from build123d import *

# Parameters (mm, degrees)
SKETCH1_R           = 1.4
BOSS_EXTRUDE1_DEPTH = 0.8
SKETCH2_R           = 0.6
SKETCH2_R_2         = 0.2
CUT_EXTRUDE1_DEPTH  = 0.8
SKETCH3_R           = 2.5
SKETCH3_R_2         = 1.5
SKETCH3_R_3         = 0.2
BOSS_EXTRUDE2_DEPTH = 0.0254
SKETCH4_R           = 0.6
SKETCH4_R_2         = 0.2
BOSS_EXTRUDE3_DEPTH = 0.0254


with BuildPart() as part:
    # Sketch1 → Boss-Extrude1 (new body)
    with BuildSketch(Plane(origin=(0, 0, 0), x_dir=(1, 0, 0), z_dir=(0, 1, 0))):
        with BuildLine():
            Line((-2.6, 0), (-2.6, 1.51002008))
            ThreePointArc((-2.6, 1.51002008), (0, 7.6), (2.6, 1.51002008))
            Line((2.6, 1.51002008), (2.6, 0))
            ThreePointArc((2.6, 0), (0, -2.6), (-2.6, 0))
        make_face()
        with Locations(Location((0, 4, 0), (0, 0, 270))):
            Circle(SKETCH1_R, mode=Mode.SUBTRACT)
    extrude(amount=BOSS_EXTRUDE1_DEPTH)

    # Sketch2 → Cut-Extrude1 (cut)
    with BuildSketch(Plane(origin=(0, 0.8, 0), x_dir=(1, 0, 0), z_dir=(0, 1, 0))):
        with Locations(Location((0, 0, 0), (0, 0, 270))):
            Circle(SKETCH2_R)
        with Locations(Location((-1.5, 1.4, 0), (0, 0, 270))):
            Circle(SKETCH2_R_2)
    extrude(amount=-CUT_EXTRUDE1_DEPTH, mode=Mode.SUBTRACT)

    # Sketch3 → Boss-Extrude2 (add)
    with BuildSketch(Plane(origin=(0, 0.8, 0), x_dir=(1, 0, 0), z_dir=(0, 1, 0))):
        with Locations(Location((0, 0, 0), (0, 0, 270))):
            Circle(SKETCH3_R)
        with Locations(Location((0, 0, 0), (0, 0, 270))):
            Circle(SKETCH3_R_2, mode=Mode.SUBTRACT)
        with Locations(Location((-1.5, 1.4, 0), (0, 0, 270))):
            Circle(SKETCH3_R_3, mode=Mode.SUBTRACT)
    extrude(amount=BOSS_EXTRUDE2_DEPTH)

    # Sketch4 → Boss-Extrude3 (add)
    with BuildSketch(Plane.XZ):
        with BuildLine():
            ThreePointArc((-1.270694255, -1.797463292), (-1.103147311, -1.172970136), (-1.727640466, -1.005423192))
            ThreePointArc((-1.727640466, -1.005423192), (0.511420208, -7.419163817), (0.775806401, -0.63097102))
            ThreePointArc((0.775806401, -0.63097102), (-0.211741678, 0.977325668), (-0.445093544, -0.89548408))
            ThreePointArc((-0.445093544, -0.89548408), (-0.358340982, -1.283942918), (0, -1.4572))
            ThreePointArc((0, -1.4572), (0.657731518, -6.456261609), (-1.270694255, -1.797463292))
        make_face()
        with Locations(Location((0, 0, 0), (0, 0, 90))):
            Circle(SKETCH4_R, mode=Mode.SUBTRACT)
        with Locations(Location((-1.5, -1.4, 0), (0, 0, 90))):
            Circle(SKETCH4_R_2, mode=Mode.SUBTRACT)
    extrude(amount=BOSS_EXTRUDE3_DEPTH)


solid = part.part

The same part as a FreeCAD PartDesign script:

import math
import FreeCAD as App
import Part
import Sketcher

V = App.Vector
Q = App.Units.Quantity

doc = App.newDocument("Part")
body = doc.addObject("PartDesign::Body", "Body")

# Sketch on XZ plane
sketch1 = body.newObject("Sketcher::SketchObject", "Sketch")
sketch1.AttachmentSupport = (doc.getObject("XZ_Plane"), [""])
sketch1.MapMode = "FlatFace"
sketch1.addGeometry([
    Part.LineSegment(V(-2.6, -1.51002, 0), V(-2.6, 0, 0)),  # 0
    Part.ArcOfCircle(Part.Circle(V(0, 0, 0), V(0, 0, 1), 2.6), math.radians(0), math.radians(180)),  # 1
    Part.LineSegment(V(2.6, 0, 0), V(2.6, -1.51002, 0)),  # 2
    Part.ArcOfCircle(Part.Circle(V(0, -4, 0), V(0, 0, 1), 3.6), math.radians(136.238257), math.radians(403.761743)),  # 3
    Part.Circle(V(0, -4, 0), V(0, 0, 1), 1.4),  # 4
], False)
sketch1.addConstraint([
    Sketcher.Constraint("Tangent", 0, 2, 1, 2),
    Sketcher.Constraint("Tangent", 1, 1, 2, 1),
    Sketcher.Constraint("Coincident", 2, 2, 3, 2),
    Sketcher.Constraint("Coincident", 3, 1, 0, 1),
    Sketcher.Constraint("Vertical", 0),
    Sketcher.Constraint("Vertical", 2),
    Sketcher.Constraint("Coincident", 1, 3, -1, 1),
    Sketcher.Constraint("Coincident", 4, 3, 3, 3),
    Sketcher.Constraint("PointOnObject", 3, 3, -2),
    Sketcher.Constraint("Diameter", 4, Q("2.8 mm")),
    Sketcher.Constraint("Radius", 1, Q("2.6 mm")),
    Sketcher.Constraint("Radius", 3, Q("3.6 mm")),
    Sketcher.Constraint("DistanceY", 3, 3, -1, 1, Q("4 mm")),
])
pad1 = body.newObject("PartDesign::Pad", "Pad")
pad1.Profile = sketch1
pad1.Length = 0.8
pad1.Reversed = True

# Sketch on XZ plane
sketch2 = body.newObject("Sketcher::SketchObject", "Sketch001")
sketch2.AttachmentSupport = (doc.getObject("XZ_Plane"), [""])
sketch2.MapMode = "FlatFace"
sketch2.AttachmentOffset = App.Placement(V(0, 0, -0.8), App.Rotation())
sketch2.addGeometry([
    Part.Circle(V(0, 0, 0), V(0, 0, 1), 0.6),
    Part.Circle(V(-1.5, -1.4, 0), V(0, 0, 1), 0.2),
], False)
sketch2.addConstraint([
    Sketcher.Constraint("Coincident", 0, 3, -1, 1),
    Sketcher.Constraint("Diameter", 0, Q("1.2 mm")),
    Sketcher.Constraint("Diameter", 1, Q("0.4 mm")),
    Sketcher.Constraint("DistanceX", 1, 3, -1, 1, Q("1.5 mm")),
    Sketcher.Constraint("DistanceY", 1, 3, -1, 1, Q("1.4 mm")),
])
pocket1 = body.newObject("PartDesign::Pocket", "Pocket")
pocket1.Profile = sketch2
pocket1.Length = 0.8
pocket1.Reversed = True

# Sketch on XZ plane
sketch3 = body.newObject("Sketcher::SketchObject", "Sketch002")
sketch3.AttachmentSupport = (doc.getObject("XZ_Plane"), [""])
sketch3.MapMode = "FlatFace"
sketch3.AttachmentOffset = App.Placement(V(0, 0, -0.8), App.Rotation())
sketch3.addGeometry([
    Part.Circle(V(0, 0, 0), V(0, 0, 1), 2.5),
    Part.Circle(V(-1.5, -1.4, 0), V(0, 0, 1), 0.2),
    Part.Circle(V(0, 0, 0), V(0, 0, 1), 1.5),
], False)
sketch3.addConstraint([
    Sketcher.Constraint("Coincident", 0, 3, -1, 1),
    Sketcher.Constraint("Coincident", 2, 3, -1, 1),
    Sketcher.Constraint("Diameter", 0, Q("5 mm")),
    Sketcher.Constraint("Diameter", 2, Q("3 mm")),
    Sketcher.Constraint("Diameter", 1, Q("0.4 mm")),
    Sketcher.Constraint("DistanceX", 1, 3, -1, 1, Q("1.5 mm")),
    Sketcher.Constraint("DistanceY", 1, 3, -1, 1, Q("1.4 mm")),
])
pad2 = body.newObject("PartDesign::Pad", "Pad001")
pad2.Profile = sketch3
pad2.Length = 0.0254
pad2.Reversed = True

# Sketch on XZ plane
sketch4 = body.newObject("Sketcher::SketchObject", "Sketch003")
sketch4.AttachmentSupport = (doc.getObject("XZ_Plane"), [""])
sketch4.MapMode = "FlatFace"
sketch4.addGeometry([
    Part.ArcOfCircle(Part.Circle(V(-1.499167, -1.401443, 0), V(0, 0, 1), 0.4572), math.radians(-60.018361), math.radians(119.981639)),  # 0
    Part.ArcOfCircle(Part.Circle(V(0, -4, 0), V(0, 0, 1), 3.4572), math.radians(119.981639), math.radians(437.032219)),  # 1
    Part.ArcOfCircle(Part.Circle(V(0, 0, 0), V(0, 0, 1), 1), math.radians(-39.121799), math.radians(243.570676)),  # 2
    Part.ArcOfCircle(Part.Circle(V(0, -1, 0), V(0, 0, 1), 0.4572), math.radians(166.785338), math.radians(270)),  # 3
    Part.ArcOfCircle(Part.Circle(V(0, -4, 0), V(0, 0, 1), 2.5428), math.radians(119.981639), math.radians(450)),  # 4
    Part.Circle(V(-1.5, -1.4, 0), V(0, 0, 1), 0.2),  # 5
    Part.Circle(V(0, 0, 0), V(0, 0, 1), 0.6),  # 6
], False)
sketch4.addConstraint([
    Sketcher.Constraint("Tangent", 0, 2, 1, 1),
    Sketcher.Constraint("Coincident", 1, 2, 2, 1),
    Sketcher.Constraint("Coincident", 2, 2, 3, 1),
    Sketcher.Constraint("Tangent", 3, 2, 4, 2),
    Sketcher.Constraint("Tangent", 4, 1, 0, 1),
    Sketcher.Constraint("Coincident", 2, 3, -1, 1),
    Sketcher.Constraint("Coincident", 6, 3, -1, 1),
    Sketcher.Constraint("Coincident", 4, 3, 1, 3),
    Sketcher.Constraint("Equal", 0, 3),
    Sketcher.Constraint("PointOnObject", 1, 3, -2),
    Sketcher.Constraint("PointOnObject", 3, 3, -2),
    Sketcher.Constraint("Radius", 2, Q("1 mm")),
    Sketcher.Constraint("Diameter", 5, Q("0.4 mm")),
    Sketcher.Constraint("Diameter", 6, Q("1.2 mm")),
    Sketcher.Constraint("DistanceY", 1, 3, -1, 1, Q("4 mm")),
    Sketcher.Constraint("DistanceY", 3, 3, -1, 1, Q("1 mm")),
    Sketcher.Constraint("DistanceX", 5, 3, -1, 1, Q("1.5 mm")),
    Sketcher.Constraint("DistanceY", 5, 3, -1, 1, Q("1.4 mm")),
    Sketcher.Constraint("Radius", 0, Q("0.4572 mm")),
    Sketcher.Constraint("DistanceX", 4, 1, 2, 2, Q("0.825601 mm")),
])
pad3 = body.newObject("PartDesign::Pad", "Pad002")
pad3.Profile = sketch4
pad3.Length = 0.0254

doc.recompute()
